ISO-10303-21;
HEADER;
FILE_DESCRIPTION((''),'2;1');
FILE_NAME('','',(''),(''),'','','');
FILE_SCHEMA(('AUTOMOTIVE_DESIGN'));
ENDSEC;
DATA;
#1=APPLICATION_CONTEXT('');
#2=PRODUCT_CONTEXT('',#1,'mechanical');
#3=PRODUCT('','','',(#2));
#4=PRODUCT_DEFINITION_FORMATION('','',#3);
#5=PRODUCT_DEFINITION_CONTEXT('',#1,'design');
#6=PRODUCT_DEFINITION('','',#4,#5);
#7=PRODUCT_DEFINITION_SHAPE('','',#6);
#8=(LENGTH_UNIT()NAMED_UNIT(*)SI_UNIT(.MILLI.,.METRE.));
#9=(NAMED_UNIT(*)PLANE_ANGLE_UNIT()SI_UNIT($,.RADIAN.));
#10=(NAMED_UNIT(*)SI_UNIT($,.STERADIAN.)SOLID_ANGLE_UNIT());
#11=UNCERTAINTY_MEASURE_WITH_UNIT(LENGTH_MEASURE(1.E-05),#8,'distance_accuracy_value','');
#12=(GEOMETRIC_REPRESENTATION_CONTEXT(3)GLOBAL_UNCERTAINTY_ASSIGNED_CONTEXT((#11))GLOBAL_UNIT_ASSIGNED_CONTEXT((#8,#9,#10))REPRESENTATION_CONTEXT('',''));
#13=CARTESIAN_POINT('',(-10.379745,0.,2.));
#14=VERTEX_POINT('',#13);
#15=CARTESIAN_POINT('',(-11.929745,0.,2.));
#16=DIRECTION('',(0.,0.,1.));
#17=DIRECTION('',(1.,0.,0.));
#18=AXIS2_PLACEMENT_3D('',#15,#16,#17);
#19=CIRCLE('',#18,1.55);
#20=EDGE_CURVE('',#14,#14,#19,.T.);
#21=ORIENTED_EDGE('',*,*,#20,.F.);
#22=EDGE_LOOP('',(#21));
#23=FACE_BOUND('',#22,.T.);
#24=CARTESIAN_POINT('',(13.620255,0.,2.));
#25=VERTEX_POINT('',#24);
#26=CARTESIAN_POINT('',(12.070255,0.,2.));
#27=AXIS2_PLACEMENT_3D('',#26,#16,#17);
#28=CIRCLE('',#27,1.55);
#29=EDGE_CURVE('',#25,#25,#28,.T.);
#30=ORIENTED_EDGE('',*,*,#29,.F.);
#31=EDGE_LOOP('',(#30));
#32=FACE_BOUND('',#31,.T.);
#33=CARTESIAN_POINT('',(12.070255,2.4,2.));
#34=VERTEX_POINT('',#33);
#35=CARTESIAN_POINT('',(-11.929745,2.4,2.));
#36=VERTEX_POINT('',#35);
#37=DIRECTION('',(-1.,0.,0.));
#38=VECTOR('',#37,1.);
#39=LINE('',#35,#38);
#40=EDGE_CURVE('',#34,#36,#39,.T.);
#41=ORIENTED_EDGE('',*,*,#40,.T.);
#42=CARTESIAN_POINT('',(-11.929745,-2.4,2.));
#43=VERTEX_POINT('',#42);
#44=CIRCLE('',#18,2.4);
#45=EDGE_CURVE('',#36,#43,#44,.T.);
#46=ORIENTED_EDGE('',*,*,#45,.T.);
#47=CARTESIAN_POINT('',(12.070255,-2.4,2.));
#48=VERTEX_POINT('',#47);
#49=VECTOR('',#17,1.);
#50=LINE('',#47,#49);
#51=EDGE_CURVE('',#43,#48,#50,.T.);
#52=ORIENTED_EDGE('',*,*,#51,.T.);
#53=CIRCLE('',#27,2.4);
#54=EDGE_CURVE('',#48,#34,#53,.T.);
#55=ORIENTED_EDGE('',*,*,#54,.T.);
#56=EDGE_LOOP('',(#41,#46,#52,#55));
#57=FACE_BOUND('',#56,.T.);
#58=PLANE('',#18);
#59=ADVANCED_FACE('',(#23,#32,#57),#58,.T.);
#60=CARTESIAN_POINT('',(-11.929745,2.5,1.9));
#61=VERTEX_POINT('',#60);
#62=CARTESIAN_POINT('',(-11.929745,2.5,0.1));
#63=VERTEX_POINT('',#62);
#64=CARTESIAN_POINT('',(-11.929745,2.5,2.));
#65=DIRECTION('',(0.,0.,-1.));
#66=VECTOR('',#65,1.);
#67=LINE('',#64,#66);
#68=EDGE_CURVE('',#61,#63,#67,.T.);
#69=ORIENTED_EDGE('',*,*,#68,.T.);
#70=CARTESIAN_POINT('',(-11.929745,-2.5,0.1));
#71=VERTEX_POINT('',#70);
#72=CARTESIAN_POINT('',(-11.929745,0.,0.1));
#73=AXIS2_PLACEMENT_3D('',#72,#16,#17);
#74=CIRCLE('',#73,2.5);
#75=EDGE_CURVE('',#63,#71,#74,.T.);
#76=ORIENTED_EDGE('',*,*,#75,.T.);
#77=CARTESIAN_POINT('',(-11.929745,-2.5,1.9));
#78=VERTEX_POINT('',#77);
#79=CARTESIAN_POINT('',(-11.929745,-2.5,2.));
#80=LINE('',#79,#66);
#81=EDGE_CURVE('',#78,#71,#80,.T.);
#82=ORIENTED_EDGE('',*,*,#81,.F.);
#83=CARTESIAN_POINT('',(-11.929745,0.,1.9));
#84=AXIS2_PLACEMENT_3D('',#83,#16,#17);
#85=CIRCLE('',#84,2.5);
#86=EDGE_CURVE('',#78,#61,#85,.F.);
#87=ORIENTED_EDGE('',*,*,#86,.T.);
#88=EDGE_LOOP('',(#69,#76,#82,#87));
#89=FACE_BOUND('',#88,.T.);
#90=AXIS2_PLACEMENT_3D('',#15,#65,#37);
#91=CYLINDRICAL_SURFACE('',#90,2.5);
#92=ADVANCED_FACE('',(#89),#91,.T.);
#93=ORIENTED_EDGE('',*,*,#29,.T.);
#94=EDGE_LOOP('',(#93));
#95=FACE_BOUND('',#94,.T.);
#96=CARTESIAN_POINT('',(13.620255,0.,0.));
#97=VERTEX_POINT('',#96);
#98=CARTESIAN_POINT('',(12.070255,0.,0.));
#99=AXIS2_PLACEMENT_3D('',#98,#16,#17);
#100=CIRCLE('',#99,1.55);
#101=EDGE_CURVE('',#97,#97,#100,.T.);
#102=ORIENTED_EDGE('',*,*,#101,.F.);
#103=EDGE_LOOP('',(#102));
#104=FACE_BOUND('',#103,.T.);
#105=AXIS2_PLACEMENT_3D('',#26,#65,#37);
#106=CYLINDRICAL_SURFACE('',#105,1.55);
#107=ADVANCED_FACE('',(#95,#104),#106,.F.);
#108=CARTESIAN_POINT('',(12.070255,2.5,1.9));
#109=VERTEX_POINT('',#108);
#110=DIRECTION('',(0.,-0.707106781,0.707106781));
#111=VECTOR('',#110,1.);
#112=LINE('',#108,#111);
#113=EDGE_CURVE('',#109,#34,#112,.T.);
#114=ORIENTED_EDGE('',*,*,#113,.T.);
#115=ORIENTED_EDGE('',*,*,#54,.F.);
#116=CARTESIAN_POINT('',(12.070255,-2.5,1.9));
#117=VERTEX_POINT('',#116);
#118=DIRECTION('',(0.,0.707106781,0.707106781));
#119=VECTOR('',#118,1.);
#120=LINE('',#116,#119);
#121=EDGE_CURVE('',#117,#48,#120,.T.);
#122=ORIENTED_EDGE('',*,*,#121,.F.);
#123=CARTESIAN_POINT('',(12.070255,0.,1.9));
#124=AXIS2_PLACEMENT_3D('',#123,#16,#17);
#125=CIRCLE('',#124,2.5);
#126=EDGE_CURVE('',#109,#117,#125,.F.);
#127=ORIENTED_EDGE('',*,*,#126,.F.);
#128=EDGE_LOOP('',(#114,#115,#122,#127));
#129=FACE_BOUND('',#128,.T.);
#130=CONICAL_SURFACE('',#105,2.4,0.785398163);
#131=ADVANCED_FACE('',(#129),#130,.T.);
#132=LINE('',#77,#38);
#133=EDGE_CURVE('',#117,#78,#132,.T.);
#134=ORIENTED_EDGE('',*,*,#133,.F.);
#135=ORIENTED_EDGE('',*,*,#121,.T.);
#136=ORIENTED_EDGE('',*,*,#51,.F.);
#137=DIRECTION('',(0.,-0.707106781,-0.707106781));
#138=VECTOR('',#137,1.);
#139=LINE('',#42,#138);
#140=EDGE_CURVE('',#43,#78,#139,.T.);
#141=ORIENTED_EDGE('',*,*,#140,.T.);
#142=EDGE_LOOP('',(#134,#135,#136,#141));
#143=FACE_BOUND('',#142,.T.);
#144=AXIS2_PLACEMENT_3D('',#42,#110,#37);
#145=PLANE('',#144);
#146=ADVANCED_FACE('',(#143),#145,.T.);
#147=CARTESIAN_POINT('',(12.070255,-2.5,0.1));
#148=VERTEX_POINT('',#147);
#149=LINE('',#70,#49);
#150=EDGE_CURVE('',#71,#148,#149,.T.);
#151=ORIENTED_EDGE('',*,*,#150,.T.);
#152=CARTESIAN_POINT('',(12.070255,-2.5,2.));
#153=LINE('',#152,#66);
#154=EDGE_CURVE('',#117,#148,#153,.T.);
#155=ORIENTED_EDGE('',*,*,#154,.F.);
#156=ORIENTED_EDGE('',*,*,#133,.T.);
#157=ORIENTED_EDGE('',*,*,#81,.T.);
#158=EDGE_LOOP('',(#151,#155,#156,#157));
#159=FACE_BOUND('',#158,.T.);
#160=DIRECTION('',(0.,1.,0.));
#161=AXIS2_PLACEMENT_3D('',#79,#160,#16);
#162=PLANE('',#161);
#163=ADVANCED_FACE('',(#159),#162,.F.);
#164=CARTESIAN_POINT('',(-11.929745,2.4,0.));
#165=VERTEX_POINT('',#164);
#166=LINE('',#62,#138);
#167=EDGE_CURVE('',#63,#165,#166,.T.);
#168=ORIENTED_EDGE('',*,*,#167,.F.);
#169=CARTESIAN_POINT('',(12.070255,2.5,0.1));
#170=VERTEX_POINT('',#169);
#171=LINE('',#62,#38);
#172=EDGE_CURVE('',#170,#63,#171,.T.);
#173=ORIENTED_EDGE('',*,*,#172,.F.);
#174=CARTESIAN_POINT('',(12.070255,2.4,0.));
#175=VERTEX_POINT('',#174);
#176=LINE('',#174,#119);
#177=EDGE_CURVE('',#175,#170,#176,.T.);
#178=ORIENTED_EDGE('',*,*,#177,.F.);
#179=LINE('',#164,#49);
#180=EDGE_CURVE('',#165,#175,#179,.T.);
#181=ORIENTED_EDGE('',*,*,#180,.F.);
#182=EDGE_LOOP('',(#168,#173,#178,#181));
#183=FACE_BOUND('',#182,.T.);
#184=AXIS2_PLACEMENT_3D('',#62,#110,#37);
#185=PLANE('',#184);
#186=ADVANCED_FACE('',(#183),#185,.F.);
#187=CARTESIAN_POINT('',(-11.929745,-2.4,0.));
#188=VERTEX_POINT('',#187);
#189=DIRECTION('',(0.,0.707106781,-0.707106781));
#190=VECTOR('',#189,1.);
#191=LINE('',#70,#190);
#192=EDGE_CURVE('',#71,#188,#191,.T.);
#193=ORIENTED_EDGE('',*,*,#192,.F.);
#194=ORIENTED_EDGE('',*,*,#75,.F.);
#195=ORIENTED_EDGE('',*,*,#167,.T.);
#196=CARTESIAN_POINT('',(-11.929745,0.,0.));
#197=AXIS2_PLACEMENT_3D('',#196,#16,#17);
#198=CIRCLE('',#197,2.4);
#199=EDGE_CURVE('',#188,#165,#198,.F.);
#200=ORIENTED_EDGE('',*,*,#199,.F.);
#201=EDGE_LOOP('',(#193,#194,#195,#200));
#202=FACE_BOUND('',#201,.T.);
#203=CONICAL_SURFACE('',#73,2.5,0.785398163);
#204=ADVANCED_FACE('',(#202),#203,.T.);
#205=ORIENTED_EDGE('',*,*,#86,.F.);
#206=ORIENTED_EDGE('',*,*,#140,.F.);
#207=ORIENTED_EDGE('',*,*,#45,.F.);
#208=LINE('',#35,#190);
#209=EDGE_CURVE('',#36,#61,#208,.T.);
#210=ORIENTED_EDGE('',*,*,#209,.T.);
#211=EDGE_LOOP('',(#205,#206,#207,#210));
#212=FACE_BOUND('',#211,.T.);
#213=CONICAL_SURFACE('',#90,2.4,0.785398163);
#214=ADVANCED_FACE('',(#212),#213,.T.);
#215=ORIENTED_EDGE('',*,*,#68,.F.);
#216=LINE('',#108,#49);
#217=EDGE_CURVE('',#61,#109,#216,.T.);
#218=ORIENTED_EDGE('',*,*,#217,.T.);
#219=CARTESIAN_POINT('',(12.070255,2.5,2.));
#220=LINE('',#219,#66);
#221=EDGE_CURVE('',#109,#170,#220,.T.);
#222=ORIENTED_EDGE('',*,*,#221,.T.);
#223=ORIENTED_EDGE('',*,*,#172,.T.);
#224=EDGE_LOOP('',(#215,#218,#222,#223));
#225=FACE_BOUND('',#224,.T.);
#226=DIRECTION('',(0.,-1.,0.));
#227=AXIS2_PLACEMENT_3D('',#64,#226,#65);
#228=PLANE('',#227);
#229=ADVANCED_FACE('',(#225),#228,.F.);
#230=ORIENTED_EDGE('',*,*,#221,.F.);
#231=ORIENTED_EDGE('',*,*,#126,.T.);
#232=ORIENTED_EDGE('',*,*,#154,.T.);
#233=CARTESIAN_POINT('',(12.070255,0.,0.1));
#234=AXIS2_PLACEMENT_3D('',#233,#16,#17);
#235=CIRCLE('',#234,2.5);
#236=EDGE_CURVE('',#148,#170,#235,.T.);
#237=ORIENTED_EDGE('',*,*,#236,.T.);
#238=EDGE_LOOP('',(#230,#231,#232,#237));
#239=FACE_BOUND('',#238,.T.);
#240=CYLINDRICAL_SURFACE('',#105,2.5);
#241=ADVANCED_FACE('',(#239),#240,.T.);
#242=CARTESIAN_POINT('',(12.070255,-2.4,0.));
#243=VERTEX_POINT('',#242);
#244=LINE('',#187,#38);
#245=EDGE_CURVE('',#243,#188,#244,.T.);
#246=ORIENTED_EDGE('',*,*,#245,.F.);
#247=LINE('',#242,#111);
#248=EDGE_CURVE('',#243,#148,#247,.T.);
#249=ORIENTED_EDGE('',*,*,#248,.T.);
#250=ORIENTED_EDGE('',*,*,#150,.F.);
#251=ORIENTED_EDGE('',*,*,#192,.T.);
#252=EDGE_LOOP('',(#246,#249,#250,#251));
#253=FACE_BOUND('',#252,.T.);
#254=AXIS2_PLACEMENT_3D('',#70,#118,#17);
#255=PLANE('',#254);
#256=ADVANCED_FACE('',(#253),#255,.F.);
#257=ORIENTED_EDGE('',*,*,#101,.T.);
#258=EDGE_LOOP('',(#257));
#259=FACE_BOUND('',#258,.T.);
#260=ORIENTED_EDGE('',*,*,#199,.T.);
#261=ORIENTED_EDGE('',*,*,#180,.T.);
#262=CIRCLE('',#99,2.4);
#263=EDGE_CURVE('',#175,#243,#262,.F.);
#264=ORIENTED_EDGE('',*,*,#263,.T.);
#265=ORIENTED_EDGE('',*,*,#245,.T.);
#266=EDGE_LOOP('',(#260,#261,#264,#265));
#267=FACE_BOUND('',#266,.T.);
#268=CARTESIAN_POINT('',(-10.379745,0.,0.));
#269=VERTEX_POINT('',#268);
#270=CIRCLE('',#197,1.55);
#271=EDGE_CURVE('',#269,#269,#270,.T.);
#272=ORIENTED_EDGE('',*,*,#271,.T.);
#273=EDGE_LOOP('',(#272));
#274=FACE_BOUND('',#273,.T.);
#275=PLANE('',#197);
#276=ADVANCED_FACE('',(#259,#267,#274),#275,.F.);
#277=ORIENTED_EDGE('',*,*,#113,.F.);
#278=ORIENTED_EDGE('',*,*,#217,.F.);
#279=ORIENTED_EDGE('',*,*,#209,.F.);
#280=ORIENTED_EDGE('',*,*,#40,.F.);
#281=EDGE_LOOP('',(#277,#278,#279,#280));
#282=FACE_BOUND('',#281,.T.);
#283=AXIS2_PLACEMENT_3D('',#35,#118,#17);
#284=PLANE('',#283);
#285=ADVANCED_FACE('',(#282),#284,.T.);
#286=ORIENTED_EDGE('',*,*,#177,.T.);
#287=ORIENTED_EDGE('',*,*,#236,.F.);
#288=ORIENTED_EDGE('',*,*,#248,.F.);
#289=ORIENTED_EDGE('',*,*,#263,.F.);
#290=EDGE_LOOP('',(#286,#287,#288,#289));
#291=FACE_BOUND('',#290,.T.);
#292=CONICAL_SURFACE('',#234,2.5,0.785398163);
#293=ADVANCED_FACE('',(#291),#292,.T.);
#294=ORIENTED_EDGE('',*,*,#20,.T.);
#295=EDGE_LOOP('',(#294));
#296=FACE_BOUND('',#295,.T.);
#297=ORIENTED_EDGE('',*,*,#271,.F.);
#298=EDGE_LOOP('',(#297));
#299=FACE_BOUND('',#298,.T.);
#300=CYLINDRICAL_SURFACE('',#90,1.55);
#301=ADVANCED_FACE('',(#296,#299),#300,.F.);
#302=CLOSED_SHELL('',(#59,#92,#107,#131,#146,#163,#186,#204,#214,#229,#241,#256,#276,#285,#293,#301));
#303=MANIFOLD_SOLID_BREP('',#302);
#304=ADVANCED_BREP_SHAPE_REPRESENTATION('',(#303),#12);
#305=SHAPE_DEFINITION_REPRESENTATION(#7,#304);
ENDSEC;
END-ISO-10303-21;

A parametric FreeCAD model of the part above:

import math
import FreeCAD as App
import Part
import Sketcher
from FreeCAD import Vector
Q = App.Units.Quantity


def edges_at(feature, points):
    """Names of the edges that pass closest to the given points."""
    edges = feature.Shape.Edges
    near = lambda p: min(range(len(edges)), key=lambda i: edges[i].distToShape(Part.Vertex(*p))[0])
    return sorted({f"Edge{near(p) + 1}" for p in points})

doc = App.newDocument("Part")
params = doc.addObject("Spreadsheet::Sheet", "Params")
for row, (alias, value) in enumerate([
    ("sketch1_diameter", "3.1 mm"),
    ("sketch1_radius", "2.5 mm"),
    ("sketch1_width", "24 mm"),
    ("pad1_length", "2 mm"),
    ("chamfer_size", "0.1 mm"),
], start=1):
    params.set(f"A{row}", alias)
    params.set(f"B{row}", "=" + value)
    params.setAlias(f"B{row}", alias)

body = doc.addObject("PartDesign::Body", "Body")

# Sketch on XY plane
sketch1 = body.newObject("Sketcher::SketchObject", "Sketch")
sketch1.AttachmentSupport = (doc.getObject("XY_Plane"), [""])
sketch1.MapMode = "FlatFace"
sketch1.addGeometry([
    Part.LineSegment(Vector(12.1, 2.5, 0), Vector(-11.9, 2.5, 0)),  # 0
    Part.ArcOfCircle(Part.Circle(Vector(-11.9, 0, 0), Vector(0, 0, 1), 2.5), math.radians(90), math.radians(270)),  # 1
    Part.LineSegment(Vector(-11.9, -2.5, 0), Vector(12.1, -2.5, 0)),  # 2
    Part.ArcOfCircle(Part.Circle(Vector(12.1, 0, 0), Vector(0, 0, 1), 2.5), math.radians(-90), math.radians(90)),  # 3
    Part.Circle(Vector(12.1, 0, 0), Vector(0, 0, 1), 1.6),  # 4
    Part.Circle(Vector(-11.9, 0, 0), Vector(0, 0, 1), 1.6),  # 5
], False)
sketch1.addConstraint([
    Sketcher.Constraint("Tangent", 0, 2, 1, 1),
    Sketcher.Constraint("Tangent", 1, 2, 2, 1),
    Sketcher.Constraint("Tangent", 2, 2, 3, 1),
    Sketcher.Constraint("Tangent", 3, 2, 0, 1),
    Sketcher.Constraint("Horizontal", 0),
    Sketcher.Constraint("Horizontal", 2),
    Sketcher.Constraint("Coincident", 4, 3, 3, 3),
    Sketcher.Constraint("Coincident", 5, 3, 1, 3),
    Sketcher.Constraint("Equal", 4, 5),
    Sketcher.Constraint("PointOnObject", 1, 3, -1),
    Sketcher.Constraint("Diameter", 4, Q("3.1 mm")),
    Sketcher.Constraint("Radius", 1, Q("2.5 mm")),
    Sketcher.Constraint("DistanceX", 0, 2, 0, 1, Q("24 mm")),
    Sketcher.Constraint("DistanceX", 1, 3, -1, 1, Q("11.929745 mm")),
])
sketch1.setExpression("Constraints[10]", "Params.sketch1_diameter")
sketch1.setExpression("Constraints[11]", "Params.sketch1_radius")
sketch1.setExpression("Constraints[12]", "Params.sketch1_width")
pad1 = body.newObject("PartDesign::Pad", "Pad")
pad1.Profile = sketch1
pad1.setExpression("Length", "Params.pad1_length")
doc.recompute()

chamfer = body.newObject("PartDesign::Chamfer", "Chamfer")
chamfer.Base = (pad1, edges_at(pad1, [
    (14.57, 0, 2),
    (0.07, 2.5, 2),
    (-14.43, 0, 2),
    (0.07, 2.5, 0),
    (14.57, 0, 0),
    (0.07, -2.5, 0),
    (-14.43, 0, 0),
    (0.07, -2.5, 2),
]))
chamfer.setExpression("Size", "Params.chamfer_size")

doc.recompute()
